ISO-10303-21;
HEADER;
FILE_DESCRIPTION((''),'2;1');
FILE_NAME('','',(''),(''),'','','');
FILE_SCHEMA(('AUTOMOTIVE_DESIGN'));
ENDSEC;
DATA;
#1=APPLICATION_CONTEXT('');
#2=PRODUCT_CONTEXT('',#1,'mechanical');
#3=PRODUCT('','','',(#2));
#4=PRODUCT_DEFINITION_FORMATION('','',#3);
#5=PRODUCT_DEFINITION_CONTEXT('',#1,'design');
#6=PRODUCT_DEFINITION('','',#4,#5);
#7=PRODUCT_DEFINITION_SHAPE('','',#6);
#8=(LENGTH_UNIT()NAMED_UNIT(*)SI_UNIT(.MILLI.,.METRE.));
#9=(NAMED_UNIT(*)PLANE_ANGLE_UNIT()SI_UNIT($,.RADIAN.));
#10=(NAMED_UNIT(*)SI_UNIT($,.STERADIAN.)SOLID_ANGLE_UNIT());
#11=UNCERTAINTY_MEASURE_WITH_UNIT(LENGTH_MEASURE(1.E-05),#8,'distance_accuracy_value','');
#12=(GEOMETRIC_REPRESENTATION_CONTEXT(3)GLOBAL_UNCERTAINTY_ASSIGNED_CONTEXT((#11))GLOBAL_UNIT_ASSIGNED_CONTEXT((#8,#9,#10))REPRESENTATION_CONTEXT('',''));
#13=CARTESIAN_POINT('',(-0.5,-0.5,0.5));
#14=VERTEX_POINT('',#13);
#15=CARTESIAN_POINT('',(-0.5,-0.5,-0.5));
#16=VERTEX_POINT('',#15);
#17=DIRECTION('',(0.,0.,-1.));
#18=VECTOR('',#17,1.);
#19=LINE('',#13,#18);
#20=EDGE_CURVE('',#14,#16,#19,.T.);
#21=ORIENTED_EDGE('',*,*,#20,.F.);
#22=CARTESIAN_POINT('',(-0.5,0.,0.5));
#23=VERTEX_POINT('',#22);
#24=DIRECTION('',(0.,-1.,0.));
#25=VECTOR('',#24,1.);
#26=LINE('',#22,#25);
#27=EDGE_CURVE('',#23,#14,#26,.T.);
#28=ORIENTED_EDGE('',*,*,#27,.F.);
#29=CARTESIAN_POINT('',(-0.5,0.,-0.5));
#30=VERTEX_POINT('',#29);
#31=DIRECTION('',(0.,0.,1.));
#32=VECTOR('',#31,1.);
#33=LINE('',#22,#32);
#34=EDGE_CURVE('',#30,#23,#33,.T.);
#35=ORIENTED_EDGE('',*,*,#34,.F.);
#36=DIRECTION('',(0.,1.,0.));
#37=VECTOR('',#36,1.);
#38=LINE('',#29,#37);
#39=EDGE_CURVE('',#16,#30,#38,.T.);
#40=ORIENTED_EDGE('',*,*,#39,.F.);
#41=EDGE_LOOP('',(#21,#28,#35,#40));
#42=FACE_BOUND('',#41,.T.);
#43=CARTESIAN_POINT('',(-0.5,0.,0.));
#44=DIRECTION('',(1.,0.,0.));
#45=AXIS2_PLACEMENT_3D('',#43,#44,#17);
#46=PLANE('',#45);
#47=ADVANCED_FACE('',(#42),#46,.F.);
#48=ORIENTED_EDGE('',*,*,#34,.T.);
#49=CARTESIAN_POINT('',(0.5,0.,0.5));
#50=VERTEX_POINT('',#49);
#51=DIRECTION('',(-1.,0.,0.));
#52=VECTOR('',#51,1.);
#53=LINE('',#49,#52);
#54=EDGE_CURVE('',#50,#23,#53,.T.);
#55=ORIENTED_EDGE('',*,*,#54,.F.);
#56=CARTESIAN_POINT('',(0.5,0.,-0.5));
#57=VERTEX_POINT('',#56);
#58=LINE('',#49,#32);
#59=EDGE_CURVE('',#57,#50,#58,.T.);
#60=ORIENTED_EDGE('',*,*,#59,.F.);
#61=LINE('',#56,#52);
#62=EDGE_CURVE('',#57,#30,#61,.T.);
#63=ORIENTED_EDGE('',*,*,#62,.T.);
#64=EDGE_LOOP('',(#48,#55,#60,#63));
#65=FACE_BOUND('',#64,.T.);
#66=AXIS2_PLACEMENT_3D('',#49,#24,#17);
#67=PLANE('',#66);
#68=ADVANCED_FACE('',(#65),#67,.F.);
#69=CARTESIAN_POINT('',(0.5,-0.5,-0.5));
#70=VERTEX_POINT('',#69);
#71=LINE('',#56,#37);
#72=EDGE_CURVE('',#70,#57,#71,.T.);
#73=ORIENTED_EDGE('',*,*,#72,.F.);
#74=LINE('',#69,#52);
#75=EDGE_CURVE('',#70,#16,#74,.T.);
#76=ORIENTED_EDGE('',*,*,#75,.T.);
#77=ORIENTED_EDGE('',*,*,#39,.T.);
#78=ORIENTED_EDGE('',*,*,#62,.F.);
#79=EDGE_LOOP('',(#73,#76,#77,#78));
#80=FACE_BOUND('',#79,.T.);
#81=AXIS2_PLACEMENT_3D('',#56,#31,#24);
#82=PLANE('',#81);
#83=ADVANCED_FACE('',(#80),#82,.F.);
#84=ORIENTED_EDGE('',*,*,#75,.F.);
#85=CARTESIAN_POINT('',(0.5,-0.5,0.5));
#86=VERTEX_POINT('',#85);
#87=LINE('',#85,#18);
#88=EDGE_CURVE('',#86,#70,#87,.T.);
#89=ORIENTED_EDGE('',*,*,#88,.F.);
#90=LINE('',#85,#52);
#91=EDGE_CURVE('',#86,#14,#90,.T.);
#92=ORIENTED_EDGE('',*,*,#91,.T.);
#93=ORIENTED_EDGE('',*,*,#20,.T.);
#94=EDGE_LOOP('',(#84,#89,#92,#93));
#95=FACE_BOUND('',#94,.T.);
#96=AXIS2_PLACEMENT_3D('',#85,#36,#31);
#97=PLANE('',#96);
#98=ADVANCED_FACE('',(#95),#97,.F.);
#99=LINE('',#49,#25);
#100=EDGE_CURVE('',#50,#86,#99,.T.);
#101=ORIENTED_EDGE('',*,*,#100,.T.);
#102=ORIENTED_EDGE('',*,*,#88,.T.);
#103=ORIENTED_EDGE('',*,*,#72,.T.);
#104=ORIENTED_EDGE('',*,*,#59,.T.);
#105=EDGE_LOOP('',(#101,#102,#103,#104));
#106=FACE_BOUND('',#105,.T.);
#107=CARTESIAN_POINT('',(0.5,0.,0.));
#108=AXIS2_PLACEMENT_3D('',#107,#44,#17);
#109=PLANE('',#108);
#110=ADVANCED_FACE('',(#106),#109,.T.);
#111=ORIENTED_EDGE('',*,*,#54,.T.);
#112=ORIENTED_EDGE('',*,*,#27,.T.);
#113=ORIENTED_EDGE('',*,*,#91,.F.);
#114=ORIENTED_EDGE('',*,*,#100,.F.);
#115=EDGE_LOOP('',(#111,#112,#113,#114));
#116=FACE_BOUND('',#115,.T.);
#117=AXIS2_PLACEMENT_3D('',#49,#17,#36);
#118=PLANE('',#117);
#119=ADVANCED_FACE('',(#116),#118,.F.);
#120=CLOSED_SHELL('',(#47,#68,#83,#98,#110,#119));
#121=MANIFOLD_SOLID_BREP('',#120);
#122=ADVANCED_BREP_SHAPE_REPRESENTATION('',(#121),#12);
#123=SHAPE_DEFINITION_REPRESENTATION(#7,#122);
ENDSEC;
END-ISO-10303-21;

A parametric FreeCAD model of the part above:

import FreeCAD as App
import Part
import Sketcher


def add_polygon(sketch, points):
    """Adds a closed chain of lines whose ends are joined by coincident constraints."""
    first, n = sketch.GeometryCount, len(points)
    for a, b in zip(points, points[1:] + points[:1]):
        sketch.addGeometry(Part.LineSegment(App.Vector(*a, 0), App.Vector(*b, 0)), False)
    for i in range(n):
        sketch.addConstraint(Sketcher.Constraint("Coincident", first + i, 2, first + (i + 1) % n, 1))

doc = App.newDocument("Part")
params = doc.addObject("Spreadsheet::Sheet", "Params")
for row, (alias, value) in enumerate([
    ("sketch1_height", "1 mm"),
    ("sketch1_width", "0.5 mm"),
    ("pad1_length", "1 mm"),
], start=1):
    params.set(f"A{row}", alias)
    params.set(f"B{row}", "=" + value)
    params.setAlias(f"B{row}", alias)

body = doc.addObject("PartDesign::Body", "Body")

# Sketch on YZ plane
sketch1 = body.newObject("Sketcher::SketchObject", "Sketch")
sketch1.AttachmentSupport = (doc.getObject("YZ_Plane"), [""])
sketch1.MapMode = "FlatFace"
add_polygon(sketch1, [(0, 0.5), (-0.5, 0.5), (-0.5, -0.5), (0, -0.5)])  # lines 0-3
sketch1.addConstraint(Sketcher.Constraint("Horizontal", 0))
sketch1.addConstraint(Sketcher.Constraint("Vertical", 1))
sketch1.addConstraint(Sketcher.Constraint("Horizontal", 2))
sketch1.addConstraint(Sketcher.Constraint("Vertical", 3))
sketch1.addConstraint(Sketcher.Constraint("Symmetric", 2, 2, 3, 2, -1, 1))
sketch1.addConstraint(Sketcher.Constraint("DistanceY", 1, 2, 1, 1, 1.0))
sketch1.addConstraint(Sketcher.Constraint("DistanceX", 0, 2, 0, 1, 0.5))
sketch1.setExpression("Constraints[9]", "Params.sketch1_height")
sketch1.setExpression("Constraints[10]", "Params.sketch1_width")
pad1 = body.newObject("PartDesign::Pad", "Pad")
pad1.Profile = sketch1
pad1.setExpression("Length", "Params.pad1_length")
pad1.Midplane = True

doc.recompute()
